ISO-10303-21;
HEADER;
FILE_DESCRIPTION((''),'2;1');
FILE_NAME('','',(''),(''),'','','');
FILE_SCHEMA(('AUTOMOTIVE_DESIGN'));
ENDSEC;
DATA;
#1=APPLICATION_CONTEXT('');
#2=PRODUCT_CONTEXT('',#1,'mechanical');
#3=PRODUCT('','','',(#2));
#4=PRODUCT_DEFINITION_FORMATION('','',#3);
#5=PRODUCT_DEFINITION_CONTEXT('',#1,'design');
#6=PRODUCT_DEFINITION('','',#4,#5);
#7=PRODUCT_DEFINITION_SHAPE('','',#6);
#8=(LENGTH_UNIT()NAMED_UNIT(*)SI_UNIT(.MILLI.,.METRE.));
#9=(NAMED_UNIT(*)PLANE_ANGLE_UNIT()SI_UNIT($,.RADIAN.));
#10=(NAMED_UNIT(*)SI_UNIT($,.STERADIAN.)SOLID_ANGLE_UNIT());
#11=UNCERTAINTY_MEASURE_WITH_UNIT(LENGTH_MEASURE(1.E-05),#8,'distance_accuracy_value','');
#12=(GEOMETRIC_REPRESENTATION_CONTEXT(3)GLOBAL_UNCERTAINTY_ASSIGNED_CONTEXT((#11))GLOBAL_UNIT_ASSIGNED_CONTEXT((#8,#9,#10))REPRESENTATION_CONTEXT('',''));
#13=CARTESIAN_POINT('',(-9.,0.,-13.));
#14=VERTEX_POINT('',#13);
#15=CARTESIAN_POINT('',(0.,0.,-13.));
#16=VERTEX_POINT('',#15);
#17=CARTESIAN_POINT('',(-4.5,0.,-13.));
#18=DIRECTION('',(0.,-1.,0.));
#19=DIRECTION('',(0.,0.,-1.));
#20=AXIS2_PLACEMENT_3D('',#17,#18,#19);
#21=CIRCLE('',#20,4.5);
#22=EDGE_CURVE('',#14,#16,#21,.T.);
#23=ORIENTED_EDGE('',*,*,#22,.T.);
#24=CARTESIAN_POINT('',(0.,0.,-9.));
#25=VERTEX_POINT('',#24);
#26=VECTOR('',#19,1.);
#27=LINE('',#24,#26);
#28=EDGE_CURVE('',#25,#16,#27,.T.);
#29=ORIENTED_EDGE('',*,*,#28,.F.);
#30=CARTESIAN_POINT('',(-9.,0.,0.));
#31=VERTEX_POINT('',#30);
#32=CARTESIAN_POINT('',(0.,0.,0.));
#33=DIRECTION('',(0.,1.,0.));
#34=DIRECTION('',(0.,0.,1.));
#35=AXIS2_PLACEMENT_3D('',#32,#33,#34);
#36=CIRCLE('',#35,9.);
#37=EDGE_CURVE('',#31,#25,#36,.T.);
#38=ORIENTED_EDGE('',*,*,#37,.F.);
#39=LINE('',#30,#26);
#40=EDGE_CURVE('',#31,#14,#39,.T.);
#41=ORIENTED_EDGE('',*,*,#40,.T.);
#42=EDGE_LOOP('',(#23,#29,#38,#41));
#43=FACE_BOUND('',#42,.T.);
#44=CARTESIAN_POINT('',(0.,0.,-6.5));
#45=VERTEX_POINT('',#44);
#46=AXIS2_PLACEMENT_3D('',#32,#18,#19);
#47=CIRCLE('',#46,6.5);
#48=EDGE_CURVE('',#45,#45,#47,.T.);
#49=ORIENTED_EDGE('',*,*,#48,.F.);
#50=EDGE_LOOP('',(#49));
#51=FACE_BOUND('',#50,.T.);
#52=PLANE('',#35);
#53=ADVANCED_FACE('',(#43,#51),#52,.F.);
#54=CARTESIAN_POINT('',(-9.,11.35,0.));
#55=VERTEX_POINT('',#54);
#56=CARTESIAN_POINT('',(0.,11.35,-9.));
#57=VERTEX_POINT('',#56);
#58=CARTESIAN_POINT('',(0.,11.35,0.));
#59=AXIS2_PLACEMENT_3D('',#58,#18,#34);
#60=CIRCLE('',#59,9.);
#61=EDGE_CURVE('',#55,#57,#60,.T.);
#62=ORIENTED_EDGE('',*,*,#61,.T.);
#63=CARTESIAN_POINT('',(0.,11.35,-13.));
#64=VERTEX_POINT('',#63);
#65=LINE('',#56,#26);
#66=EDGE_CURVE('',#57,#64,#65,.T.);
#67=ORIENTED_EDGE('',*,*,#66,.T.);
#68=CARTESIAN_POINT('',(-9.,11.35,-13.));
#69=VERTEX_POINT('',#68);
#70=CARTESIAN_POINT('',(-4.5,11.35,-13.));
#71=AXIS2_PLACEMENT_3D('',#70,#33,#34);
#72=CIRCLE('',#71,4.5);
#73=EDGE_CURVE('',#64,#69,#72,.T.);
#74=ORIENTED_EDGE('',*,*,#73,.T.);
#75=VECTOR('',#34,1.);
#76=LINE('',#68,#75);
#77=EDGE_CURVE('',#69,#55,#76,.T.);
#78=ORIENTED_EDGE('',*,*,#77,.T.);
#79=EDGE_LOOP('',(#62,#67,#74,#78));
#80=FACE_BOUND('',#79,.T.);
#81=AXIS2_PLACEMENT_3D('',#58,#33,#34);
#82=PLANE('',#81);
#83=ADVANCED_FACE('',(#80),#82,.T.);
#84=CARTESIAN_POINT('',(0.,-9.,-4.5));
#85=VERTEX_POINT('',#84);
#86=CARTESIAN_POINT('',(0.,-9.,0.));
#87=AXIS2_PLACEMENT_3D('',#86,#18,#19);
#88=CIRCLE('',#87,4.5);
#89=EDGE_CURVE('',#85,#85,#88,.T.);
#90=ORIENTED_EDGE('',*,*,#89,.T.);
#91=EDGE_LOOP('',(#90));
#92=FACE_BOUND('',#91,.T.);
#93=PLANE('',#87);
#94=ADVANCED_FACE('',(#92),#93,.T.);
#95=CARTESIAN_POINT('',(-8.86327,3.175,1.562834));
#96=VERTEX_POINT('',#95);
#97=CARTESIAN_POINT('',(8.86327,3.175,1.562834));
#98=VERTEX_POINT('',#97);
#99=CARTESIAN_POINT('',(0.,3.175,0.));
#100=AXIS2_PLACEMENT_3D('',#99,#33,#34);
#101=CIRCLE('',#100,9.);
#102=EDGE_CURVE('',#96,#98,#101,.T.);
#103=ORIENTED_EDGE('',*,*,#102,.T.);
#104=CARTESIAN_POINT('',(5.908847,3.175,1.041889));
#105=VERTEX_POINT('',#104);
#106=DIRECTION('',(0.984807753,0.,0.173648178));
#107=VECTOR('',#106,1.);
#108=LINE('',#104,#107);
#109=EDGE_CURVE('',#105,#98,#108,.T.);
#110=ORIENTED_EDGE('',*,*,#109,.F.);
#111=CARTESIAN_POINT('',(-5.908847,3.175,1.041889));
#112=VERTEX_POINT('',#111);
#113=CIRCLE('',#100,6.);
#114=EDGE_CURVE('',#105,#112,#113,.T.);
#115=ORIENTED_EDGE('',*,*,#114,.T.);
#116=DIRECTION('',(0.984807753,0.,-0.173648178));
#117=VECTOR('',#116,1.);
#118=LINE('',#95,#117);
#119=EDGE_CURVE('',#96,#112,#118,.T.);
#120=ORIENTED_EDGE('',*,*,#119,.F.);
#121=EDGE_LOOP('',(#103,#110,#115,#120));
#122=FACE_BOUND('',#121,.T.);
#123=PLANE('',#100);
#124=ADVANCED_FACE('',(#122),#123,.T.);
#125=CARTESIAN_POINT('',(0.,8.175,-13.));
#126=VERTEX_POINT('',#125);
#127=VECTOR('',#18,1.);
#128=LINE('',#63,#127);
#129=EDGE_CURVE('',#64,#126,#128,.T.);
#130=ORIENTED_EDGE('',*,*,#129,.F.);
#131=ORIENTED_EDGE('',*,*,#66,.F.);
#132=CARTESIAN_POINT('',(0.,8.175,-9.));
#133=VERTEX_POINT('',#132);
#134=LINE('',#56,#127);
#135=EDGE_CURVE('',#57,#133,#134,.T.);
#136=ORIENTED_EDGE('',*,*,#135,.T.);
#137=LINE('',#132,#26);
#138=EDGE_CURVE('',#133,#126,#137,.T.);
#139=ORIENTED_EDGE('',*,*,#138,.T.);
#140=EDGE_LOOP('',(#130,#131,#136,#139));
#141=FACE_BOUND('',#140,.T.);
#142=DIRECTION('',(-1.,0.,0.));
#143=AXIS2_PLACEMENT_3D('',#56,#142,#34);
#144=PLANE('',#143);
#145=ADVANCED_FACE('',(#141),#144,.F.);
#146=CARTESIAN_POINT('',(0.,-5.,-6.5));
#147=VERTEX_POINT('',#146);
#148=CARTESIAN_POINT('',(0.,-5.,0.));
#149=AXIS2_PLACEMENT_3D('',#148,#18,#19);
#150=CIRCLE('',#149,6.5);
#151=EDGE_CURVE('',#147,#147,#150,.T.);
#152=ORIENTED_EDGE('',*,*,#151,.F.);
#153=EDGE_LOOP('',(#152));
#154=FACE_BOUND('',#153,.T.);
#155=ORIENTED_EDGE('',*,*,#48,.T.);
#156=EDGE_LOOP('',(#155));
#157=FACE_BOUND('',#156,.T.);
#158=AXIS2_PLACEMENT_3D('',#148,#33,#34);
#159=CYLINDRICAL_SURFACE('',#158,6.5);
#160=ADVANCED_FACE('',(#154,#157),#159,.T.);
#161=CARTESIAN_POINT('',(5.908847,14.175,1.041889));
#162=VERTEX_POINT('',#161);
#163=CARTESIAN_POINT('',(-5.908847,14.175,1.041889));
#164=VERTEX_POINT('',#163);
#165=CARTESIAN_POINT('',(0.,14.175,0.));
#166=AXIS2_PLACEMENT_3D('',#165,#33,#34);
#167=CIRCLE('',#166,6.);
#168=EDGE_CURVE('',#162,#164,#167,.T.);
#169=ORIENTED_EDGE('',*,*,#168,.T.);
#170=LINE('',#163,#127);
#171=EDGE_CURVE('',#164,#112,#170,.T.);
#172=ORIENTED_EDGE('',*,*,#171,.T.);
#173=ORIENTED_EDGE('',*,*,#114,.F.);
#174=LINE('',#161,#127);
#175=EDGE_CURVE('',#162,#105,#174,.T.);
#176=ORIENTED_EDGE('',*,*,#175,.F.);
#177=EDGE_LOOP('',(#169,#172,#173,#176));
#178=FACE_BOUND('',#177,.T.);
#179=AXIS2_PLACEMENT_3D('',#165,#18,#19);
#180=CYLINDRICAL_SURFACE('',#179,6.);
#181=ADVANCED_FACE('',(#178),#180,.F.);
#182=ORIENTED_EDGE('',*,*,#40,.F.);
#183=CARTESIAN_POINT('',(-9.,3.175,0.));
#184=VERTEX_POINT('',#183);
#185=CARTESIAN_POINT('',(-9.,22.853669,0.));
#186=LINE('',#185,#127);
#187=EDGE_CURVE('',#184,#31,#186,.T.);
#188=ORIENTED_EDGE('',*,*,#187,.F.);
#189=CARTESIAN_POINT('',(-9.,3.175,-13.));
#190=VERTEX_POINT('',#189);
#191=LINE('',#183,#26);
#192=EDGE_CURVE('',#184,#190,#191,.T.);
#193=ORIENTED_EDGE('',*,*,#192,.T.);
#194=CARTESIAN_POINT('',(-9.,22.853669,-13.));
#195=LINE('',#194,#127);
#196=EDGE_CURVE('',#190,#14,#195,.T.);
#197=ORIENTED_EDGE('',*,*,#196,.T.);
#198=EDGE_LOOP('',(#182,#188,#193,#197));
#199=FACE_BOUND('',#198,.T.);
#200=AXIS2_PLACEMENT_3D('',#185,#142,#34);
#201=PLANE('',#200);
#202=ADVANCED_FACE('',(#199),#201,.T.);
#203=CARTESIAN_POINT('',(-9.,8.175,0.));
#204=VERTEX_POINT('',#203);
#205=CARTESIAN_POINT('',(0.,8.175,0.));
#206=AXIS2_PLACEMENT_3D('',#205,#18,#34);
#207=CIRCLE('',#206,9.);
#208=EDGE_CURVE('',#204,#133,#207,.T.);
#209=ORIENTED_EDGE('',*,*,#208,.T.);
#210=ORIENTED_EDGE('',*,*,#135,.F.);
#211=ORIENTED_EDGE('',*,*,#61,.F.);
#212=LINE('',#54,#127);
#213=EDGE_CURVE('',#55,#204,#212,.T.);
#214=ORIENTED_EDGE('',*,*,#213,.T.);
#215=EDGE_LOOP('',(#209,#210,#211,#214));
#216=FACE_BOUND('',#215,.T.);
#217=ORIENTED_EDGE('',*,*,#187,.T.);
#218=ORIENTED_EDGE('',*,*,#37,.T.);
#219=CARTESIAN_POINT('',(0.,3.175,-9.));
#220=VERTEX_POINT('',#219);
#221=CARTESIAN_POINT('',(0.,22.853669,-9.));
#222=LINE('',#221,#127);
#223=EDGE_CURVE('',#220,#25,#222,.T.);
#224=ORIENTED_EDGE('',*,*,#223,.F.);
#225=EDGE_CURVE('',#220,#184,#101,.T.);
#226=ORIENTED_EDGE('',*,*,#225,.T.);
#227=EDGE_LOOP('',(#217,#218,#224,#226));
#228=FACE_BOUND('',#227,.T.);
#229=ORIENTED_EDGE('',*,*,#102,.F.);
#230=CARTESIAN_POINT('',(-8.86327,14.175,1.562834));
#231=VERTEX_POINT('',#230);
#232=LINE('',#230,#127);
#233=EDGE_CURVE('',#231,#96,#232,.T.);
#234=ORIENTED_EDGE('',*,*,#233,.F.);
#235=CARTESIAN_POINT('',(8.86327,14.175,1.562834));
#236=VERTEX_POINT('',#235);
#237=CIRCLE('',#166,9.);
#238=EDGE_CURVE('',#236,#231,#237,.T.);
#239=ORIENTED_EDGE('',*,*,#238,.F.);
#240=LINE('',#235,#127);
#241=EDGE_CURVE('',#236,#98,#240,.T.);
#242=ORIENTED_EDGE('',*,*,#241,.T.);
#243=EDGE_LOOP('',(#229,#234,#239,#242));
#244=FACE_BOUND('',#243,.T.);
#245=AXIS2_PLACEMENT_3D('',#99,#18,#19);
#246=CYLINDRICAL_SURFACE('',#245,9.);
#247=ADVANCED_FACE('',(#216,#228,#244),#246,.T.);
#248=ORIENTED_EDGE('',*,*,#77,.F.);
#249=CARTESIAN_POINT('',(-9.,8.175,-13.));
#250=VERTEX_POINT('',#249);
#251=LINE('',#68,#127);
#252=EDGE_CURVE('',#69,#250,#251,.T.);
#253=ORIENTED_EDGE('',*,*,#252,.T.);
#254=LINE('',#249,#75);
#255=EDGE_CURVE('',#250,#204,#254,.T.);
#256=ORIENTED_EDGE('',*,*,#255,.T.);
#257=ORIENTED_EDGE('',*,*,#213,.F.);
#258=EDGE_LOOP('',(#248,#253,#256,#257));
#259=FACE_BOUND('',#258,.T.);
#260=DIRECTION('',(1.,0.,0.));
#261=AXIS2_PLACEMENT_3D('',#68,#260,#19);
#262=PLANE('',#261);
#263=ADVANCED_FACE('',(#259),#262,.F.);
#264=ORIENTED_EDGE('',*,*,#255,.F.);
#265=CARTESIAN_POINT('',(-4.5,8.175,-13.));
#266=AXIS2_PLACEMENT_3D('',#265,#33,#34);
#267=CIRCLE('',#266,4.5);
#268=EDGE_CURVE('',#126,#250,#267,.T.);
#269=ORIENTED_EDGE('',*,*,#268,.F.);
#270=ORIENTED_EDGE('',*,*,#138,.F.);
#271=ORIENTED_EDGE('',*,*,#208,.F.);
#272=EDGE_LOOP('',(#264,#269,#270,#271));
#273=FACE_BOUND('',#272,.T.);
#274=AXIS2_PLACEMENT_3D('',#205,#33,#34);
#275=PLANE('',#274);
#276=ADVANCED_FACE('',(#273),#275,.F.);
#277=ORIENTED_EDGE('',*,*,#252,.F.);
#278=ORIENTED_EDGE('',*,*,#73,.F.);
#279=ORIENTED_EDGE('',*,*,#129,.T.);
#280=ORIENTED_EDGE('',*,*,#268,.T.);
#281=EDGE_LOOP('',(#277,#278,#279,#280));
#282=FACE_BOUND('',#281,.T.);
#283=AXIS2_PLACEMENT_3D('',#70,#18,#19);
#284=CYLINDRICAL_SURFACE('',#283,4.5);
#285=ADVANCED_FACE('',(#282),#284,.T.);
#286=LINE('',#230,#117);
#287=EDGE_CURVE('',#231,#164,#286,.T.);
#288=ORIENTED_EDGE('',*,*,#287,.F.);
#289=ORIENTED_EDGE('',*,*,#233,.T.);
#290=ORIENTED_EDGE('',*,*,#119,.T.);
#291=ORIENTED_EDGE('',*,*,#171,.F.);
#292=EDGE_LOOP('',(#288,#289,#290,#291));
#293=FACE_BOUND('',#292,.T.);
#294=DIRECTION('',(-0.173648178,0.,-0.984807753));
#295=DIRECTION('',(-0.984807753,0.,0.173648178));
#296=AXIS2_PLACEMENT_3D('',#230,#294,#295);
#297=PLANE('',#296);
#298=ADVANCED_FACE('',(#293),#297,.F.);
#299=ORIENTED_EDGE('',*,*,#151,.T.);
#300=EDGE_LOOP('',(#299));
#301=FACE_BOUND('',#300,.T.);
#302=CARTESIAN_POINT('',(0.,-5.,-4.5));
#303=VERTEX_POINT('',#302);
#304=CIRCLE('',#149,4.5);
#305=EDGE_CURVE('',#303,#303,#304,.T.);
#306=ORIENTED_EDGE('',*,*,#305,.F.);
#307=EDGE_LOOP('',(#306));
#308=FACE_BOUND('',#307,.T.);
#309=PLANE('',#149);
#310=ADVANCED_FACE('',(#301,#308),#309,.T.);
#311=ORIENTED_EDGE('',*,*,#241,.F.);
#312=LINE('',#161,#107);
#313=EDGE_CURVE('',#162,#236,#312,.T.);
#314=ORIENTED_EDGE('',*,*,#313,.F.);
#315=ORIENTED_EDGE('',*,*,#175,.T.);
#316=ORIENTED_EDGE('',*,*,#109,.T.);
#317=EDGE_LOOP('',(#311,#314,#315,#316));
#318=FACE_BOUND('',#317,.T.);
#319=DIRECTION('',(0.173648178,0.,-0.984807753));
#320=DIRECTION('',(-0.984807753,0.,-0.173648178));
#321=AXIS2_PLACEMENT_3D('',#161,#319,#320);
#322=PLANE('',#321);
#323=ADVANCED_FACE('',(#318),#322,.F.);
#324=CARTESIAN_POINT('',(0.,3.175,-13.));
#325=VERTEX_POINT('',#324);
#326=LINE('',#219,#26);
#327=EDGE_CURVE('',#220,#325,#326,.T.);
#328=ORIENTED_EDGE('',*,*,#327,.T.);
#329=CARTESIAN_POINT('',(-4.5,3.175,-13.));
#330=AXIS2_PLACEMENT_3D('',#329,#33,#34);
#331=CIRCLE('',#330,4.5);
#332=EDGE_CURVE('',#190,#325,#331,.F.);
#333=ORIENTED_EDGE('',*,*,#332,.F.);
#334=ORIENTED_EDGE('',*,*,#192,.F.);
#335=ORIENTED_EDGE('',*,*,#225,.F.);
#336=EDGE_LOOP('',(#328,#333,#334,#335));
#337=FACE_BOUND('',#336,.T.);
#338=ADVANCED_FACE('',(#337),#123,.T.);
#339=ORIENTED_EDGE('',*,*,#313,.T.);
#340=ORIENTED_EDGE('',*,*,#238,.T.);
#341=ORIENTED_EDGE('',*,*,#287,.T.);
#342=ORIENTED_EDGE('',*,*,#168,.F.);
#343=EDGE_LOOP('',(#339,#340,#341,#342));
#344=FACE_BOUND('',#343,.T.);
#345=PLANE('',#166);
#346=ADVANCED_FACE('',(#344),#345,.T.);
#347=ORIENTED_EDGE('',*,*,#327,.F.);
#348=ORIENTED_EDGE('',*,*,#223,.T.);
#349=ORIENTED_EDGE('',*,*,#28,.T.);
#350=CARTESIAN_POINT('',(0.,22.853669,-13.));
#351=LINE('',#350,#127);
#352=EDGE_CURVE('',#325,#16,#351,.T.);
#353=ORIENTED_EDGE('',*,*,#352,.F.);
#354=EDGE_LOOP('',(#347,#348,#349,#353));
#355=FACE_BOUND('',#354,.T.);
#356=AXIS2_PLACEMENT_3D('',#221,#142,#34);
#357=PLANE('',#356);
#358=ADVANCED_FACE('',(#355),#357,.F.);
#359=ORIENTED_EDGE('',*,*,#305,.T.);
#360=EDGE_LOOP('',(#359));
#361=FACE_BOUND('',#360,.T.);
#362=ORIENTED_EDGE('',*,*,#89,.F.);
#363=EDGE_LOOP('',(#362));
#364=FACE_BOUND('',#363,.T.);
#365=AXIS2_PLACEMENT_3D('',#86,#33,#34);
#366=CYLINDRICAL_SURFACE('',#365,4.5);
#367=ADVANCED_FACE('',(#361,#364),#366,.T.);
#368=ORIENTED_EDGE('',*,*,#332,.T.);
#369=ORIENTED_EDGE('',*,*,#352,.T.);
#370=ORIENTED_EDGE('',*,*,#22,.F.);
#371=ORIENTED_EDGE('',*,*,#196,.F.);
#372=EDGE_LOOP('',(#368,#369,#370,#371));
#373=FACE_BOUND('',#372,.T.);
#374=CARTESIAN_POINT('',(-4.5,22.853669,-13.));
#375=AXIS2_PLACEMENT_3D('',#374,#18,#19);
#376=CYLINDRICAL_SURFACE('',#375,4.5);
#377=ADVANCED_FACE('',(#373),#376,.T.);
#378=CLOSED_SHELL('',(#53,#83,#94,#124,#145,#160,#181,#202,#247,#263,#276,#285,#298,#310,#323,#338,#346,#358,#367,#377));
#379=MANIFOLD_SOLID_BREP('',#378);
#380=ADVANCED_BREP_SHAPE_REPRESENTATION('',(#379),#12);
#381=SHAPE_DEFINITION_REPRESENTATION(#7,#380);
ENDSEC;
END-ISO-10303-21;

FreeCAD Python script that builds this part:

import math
import FreeCAD as App
import Part
import Sketcher
Q = App.Units.Quantity

doc = App.newDocument("Part")
body = doc.addObject("PartDesign::Body", "Body")

# Sketch on XZ plane
sketch1 = doc.addObject("Sketcher::SketchObject", "Sketch")
body.addObject(sketch1)
sketch1.AttachmentSupport = (doc.XZ_Plane, [""])
sketch1.MapMode = "FlatFace"
sketch1.addGeometry(Part.Circle(App.Vector(0, 0, 0), App.Vector(0, 0, 1), 9), False)
sketch1.addConstraint([
    Sketcher.Constraint("Coincident", 0, 3, -1, 1),
    Sketcher.Constraint("Diameter", 0, Q("18 mm")),
])
pad1 = doc.addObject("PartDesign::Pad", "Pad")
body.addObject(pad1)
pad1.Profile = sketch1
pad1.Length = 3.175
pad1.Reversed = True

# Sketch on XZ plane
sketch2 = doc.addObject("Sketcher::SketchObject", "Sketch001")
body.addObject(sketch2)
sketch2.AttachmentSupport = (doc.XZ_Plane, [""])
sketch2.MapMode = "FlatFace"
sketch2.AttachmentOffset = App.Placement(App.Vector(0, 0, -3.175), App.Rotation())
sketch2.addGeometry([
    Part.LineSegment(App.Vector(-8.9, 1.6, 0), App.Vector(-5.9, 1, 0)),
    Part.ArcOfCircle(Part.Circle(App.Vector(0, 0, 0), App.Vector(0, 0, 1), 6), math.radians(170), math.radians(370)),
    Part.LineSegment(App.Vector(5.9, 1, 0), App.Vector(8.9, 1.6, 0)),
    Part.ArcOfCircle(Part.Circle(App.Vector(0, 0, 0), App.Vector(0, 0, 1), 9), math.radians(170), math.radians(370)),
], False)
sketch2.addConstraint([
    Sketcher.Constraint("Coincident", 0, 2, 1, 1),
    Sketcher.Constraint("Coincident", 1, 2, 2, 1),
    Sketcher.Constraint("Coincident", 2, 2, 3, 2),
    Sketcher.Constraint("Coincident", 3, 1, 0, 1),
    Sketcher.Constraint("Coincident", 1, 3, -1, 1),
    Sketcher.Constraint("Coincident", 3, 3, -1, 1),
    Sketcher.Constraint("Horizontal", 0, 2, 1, 2),
    Sketcher.Constraint("Horizontal", 2, 2, 3, 1),
    Sketcher.Constraint("Radius", 1, Q("6 mm")),
    Sketcher.Constraint("Radius", 3, Q("9 mm")),
    Sketcher.Constraint("Angle", 0, Q("-10 deg")),
    Sketcher.Constraint("DistanceY", -1, 1, 0, 2, Q("1.041889 mm")),
])
pad2 = doc.addObject("PartDesign::Pad", "Pad001")
body.addObject(pad2)
pad2.Profile = sketch2
pad2.Length = 11
pad2.Reversed = True

# Sketch on XZ plane
sketch3 = doc.addObject("Sketcher::SketchObject", "Sketch002")
body.addObject(sketch3)
sketch3.AttachmentSupport = (doc.XZ_Plane, [""])
sketch3.MapMode = "FlatFace"
sketch3.addGeometry(Part.Circle(App.Vector(0, 0, 0), App.Vector(0, 0, 1), 6), False)
sketch3.addConstraint([
    Sketcher.Constraint("Coincident", 0, 3, -1, 1),
    Sketcher.Constraint("Diameter", 0, Q("13 mm")),
])
pad3 = doc.addObject("PartDesign::Pad", "Pad002")
body.addObject(pad3)
pad3.Profile = sketch3
pad3.Length = 5

# Sketch on XZ plane
sketch4 = doc.addObject("Sketcher::SketchObject", "Sketch003")
body.addObject(sketch4)
sketch4.AttachmentSupport = (doc.XZ_Plane, [""])
sketch4.MapMode = "FlatFace"
sketch4.AttachmentOffset = App.Placement(App.Vector(0, 0, 5), App.Rotation())
sketch4.addGeometry(Part.Circle(App.Vector(0, 0, 0), App.Vector(0, 0, 1), 4.5), False)
sketch4.addConstraint([
    Sketcher.Constraint("Coincident", 0, 3, -1, 1),
    Sketcher.Constraint("Diameter", 0, Q("9 mm")),
])
pad4 = doc.addObject("PartDesign::Pad", "Pad003")
body.addObject(pad4)
pad4.Profile = sketch4
pad4.Length = 4

# Sketch on XZ plane
sketch5 = doc.addObject("Sketcher::SketchObject", "Sketch004")
body.addObject(sketch5)
sketch5.AttachmentSupport = (doc.XZ_Plane, [""])
sketch5.MapMode = "FlatFace"
sketch5.addGeometry([
    Part.LineSegment(App.Vector(-9, -13, 0), App.Vector(-9, 0, 0)),
    Part.ArcOfCircle(Part.Circle(App.Vector(0, 0, 0), App.Vector(0, 0, 1), 9), math.radians(180), math.radians(270)),
    Part.LineSegment(App.Vector(0, -9, 0), App.Vector(0, -13, 0)),
    Part.ArcOfCircle(Part.Circle(App.Vector(-4.5, -13, 0), App.Vector(0, 0, 1), 4.5), math.radians(180), math.radians(360)),
], False)
sketch5.addConstraint([
    Sketcher.Constraint("Tangent", 0, 2, 1, 1),
    Sketcher.Constraint("Coincident", 1, 2, 2, 1),
    Sketcher.Constraint("Tangent", 2, 2, 3, 2),
    Sketcher.Constraint("Tangent", 3, 1, 0, 1),
    Sketcher.Constraint("Vertical", 0),
    Sketcher.Constraint("Vertical", 2),
    Sketcher.Constraint("Coincident", 1, 3, -1, 1),
    Sketcher.Constraint("PointOnObject", 1, 2, -2),
    Sketcher.Constraint("Radius", 1, Q("9 mm")),
    Sketcher.Constraint("DistanceY", 0, 1, 0, 2, Q("13 mm")),
])
pad5 = doc.addObject("PartDesign::Pad", "Pad004")
body.addObject(pad5)
pad5.Profile = sketch5
pad5.Length = 3.175
pad5.Reversed = True

# Sketch on XZ plane
sketch6 = doc.addObject("Sketcher::SketchObject", "Sketch005")
body.addObject(sketch6)
sketch6.AttachmentSupport = (doc.XZ_Plane, [""])
sketch6.MapMode = "FlatFace"
sketch6.AttachmentOffset = App.Placement(App.Vector(0, 0, -8.175), App.Rotation())
sketch6.addGeometry([
    Part.LineSegment(App.Vector(0, -9, 0), App.Vector(0, -13, 0)),
    Part.ArcOfCircle(Part.Circle(App.Vector(-4.5, -13, 0), App.Vector(0, 0, 1), 4.5), math.radians(180), math.radians(360)),
    Part.LineSegment(App.Vector(-9, -13, 0), App.Vector(-9, 0, 0)),
    Part.ArcOfCircle(Part.Circle(App.Vector(0, 0, 0), App.Vector(0, 0, 1), 9), math.radians(180), math.radians(270)),
], False)
sketch6.addConstraint([
    Sketcher.Constraint("Tangent", 0, 2, 1, 2),
    Sketcher.Constraint("Tangent", 1, 1, 2, 1),
    Sketcher.Constraint("Tangent", 2, 2, 3, 1),
    Sketcher.Constraint("Coincident", 3, 2, 0, 1),
    Sketcher.Constraint("Vertical", 0),
    Sketcher.Constraint("Vertical", 2),
    Sketcher.Constraint("Coincident", 3, 3, -1, 1),
    Sketcher.Constraint("PointOnObject", 0, 2, -2),
    Sketcher.Constraint("Radius", 3, Q("9 mm")),
    Sketcher.Constraint("DistanceY", 0, 2, 0, 1, Q("4 mm")),
])
pad6 = doc.addObject("PartDesign::Pad", "Pad005")
body.addObject(pad6)
pad6.Profile = sketch6
pad6.Length = 3.175
pad6.Reversed = True

doc.recompute()
